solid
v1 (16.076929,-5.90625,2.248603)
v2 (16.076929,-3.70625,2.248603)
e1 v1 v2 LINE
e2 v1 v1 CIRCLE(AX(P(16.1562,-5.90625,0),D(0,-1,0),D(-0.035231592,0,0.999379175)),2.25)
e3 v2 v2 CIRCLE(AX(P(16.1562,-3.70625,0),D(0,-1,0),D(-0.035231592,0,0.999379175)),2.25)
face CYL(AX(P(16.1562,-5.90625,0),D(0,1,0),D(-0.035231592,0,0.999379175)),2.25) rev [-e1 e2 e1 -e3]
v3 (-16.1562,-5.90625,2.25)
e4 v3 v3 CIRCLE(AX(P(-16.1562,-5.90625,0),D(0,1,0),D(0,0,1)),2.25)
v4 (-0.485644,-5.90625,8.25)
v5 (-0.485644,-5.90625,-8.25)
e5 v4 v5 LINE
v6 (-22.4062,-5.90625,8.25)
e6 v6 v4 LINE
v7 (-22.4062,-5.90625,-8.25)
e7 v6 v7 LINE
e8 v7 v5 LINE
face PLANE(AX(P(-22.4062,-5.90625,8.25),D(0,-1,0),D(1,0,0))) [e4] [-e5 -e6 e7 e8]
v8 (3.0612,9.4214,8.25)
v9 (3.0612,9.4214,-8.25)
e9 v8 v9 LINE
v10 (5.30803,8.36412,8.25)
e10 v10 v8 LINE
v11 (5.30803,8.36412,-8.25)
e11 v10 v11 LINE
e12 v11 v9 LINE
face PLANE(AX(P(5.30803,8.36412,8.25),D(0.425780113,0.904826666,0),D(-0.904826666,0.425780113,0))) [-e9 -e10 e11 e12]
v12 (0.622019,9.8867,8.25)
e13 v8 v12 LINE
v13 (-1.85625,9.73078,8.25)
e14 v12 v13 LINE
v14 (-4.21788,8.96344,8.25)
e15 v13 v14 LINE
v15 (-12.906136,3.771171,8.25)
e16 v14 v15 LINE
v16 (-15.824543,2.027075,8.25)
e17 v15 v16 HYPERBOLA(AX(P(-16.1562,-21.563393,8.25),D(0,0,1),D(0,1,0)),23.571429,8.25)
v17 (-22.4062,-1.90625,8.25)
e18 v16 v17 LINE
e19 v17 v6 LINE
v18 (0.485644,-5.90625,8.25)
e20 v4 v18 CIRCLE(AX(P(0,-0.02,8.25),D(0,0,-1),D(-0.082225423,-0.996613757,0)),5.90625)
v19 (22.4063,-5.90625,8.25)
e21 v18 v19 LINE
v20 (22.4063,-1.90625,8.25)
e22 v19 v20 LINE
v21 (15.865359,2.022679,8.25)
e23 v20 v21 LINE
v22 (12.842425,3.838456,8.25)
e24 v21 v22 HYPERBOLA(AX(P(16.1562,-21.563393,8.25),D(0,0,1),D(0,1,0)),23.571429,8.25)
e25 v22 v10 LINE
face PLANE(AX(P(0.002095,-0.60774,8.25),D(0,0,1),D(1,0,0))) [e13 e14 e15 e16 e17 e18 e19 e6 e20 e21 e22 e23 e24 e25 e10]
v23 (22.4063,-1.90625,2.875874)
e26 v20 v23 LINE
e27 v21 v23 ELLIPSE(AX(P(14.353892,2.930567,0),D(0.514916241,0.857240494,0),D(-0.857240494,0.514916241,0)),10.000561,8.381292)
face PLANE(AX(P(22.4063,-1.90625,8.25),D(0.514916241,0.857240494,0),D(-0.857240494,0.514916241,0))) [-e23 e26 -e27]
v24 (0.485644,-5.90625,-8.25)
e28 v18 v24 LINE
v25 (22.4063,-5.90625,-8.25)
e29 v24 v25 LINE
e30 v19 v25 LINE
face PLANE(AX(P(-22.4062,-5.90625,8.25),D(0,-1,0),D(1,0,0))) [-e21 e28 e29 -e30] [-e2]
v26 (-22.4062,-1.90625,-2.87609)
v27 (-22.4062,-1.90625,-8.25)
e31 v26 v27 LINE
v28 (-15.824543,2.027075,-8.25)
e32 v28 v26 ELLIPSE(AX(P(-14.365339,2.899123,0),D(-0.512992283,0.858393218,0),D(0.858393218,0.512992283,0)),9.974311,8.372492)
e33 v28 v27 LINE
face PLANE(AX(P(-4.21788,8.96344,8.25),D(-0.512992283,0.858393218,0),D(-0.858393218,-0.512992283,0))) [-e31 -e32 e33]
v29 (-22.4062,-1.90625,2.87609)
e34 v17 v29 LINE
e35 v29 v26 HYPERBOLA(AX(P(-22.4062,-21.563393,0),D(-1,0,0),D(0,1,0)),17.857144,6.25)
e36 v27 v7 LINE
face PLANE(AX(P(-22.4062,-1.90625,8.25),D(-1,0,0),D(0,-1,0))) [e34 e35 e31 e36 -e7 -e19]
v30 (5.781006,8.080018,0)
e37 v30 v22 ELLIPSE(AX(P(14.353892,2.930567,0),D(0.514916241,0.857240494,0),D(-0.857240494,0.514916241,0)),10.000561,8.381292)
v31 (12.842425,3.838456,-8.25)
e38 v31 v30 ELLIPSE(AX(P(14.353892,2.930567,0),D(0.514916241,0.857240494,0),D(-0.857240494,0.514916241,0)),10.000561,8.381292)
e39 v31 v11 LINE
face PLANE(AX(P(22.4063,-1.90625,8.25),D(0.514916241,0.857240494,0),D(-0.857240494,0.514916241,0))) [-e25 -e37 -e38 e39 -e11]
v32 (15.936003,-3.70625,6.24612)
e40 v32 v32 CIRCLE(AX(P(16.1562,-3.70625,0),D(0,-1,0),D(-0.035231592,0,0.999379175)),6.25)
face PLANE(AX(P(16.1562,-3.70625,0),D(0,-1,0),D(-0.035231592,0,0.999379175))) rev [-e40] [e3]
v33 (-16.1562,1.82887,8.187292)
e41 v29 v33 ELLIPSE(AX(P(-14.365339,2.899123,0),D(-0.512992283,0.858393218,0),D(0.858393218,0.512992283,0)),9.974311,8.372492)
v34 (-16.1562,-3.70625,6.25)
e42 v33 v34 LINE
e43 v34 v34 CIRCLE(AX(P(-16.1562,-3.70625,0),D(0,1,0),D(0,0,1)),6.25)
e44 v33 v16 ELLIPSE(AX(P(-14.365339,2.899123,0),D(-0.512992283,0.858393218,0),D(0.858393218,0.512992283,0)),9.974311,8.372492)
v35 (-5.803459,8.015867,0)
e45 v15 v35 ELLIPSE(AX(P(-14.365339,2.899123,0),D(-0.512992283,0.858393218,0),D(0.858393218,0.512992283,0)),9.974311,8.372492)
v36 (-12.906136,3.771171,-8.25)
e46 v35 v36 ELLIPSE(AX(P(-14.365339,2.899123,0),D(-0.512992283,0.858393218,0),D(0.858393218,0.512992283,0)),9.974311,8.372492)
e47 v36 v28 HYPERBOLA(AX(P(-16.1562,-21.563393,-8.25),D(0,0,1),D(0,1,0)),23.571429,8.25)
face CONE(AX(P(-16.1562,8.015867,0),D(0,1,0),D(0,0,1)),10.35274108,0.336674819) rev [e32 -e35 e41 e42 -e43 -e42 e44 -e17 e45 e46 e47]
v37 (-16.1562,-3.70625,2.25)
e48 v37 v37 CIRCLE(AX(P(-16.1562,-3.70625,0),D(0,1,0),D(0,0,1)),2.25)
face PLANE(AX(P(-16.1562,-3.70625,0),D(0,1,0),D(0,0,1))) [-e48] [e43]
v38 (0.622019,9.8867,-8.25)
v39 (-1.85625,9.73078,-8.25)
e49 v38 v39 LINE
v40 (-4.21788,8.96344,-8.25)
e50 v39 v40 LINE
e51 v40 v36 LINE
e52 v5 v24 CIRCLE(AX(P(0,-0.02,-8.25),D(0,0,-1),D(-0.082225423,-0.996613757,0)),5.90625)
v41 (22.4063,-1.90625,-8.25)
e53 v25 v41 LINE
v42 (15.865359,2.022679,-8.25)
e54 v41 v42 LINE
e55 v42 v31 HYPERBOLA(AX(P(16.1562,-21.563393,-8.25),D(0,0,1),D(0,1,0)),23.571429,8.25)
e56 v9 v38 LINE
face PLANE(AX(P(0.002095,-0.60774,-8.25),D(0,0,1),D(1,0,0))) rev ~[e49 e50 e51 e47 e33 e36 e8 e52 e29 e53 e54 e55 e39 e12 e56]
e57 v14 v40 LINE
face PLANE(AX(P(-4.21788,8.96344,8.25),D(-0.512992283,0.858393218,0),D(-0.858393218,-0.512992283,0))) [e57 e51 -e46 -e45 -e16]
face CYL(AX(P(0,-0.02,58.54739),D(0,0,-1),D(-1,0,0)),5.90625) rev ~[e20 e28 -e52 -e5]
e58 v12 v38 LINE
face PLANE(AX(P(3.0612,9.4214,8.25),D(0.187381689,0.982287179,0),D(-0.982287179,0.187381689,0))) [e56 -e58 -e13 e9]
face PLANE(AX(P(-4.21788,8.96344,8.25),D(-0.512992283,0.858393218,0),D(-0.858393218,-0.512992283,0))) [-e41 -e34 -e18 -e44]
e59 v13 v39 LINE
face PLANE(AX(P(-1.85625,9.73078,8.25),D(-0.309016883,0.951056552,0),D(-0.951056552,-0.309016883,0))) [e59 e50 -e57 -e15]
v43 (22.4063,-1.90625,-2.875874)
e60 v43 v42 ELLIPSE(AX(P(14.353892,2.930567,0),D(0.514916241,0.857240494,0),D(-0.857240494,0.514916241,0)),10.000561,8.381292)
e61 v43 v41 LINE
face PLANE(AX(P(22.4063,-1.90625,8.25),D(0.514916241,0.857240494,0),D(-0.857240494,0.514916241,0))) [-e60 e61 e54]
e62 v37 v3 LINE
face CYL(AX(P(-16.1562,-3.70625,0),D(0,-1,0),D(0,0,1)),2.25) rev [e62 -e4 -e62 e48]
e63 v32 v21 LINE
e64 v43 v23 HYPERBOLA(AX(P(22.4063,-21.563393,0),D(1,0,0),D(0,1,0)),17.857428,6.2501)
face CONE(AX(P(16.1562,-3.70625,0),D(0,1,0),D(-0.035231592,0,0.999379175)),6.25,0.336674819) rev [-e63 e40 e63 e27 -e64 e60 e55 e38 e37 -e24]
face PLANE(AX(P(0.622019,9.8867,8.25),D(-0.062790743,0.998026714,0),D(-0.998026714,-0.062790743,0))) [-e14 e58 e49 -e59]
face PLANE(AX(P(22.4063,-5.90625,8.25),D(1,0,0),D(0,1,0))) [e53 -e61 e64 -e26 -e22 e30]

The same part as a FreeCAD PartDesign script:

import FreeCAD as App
import Part
import Sketcher

V = App.Vector
Q = App.Units.Quantity

doc = App.newDocument("Part")
body = doc.addObject("PartDesign::Body", "Body")

sketch1 = body.newObject("Sketcher::SketchObject", "Sketch")
sketch1.AttachmentSupport = (doc.getObject("XY_Plane"), [""])
sketch1.MapMode = "FlatFace"
sketch1.AttachmentOffset = App.Placement(V(0, 0, 8.25), App.Rotation())
sketch1.addGeometry([
    Part.LineSegment(V(22.4063, -1.90625, 0), V(5.30803, 8.36412, 0)),
    Part.LineSegment(V(5.30803, 8.36412, 0), V(3.0612, 9.4214, 0)),
    Part.LineSegment(V(3.0612, 9.4214, 0), V(0.622019, 9.8867, 0)),
    Part.LineSegment(V(0.622019, 9.8867, 0), V(-1.85625, 9.73078, 0)),
    Part.LineSegment(V(-1.85625, 9.73078, 0), V(-4.21788, 8.96344, 0)),
    Part.LineSegment(V(-4.21788, 8.96344, 0), V(-22.4062, -1.90625, 0)),
    Part.LineSegment(V(-22.4062, -1.90625, 0), V(-22.4062, -5.90625, 0)),
    Part.LineSegment(V(-22.4062, -5.90625, 0), V(22.4063, -5.90625, 0)),
    Part.LineSegment(V(22.4063, -5.90625, 0), V(22.4063, -1.90625, 0)),
], False)
sketch1.addConstraint([
    Sketcher.Constraint("Coincident", 0, 2, 1, 1),
    Sketcher.Constraint("Coincident", 1, 2, 2, 1),
    Sketcher.Constraint("Coincident", 2, 2, 3, 1),
    Sketcher.Constraint("Coincident", 3, 2, 4, 1),
    Sketcher.Constraint("Coincident", 4, 2, 5, 1),
    Sketcher.Constraint("Coincident", 5, 2, 6, 1),
    Sketcher.Constraint("Coincident", 6, 2, 7, 1),
    Sketcher.Constraint("Coincident", 7, 2, 8, 1),
    Sketcher.Constraint("Coincident", 8, 2, 0, 1),
    Sketcher.Constraint("Vertical", 6),
    Sketcher.Constraint("Horizontal", 7),
    Sketcher.Constraint("Vertical", 8),
    Sketcher.Constraint("Horizontal", 5, 2, 8, 2),
    Sketcher.Constraint("Equal", 2, 4),
    Sketcher.Constraint("DistanceY", 6, 2, 6, 1, 4.0),
    Sketcher.Constraint("Angle", 4, Q("-162.000007 deg")),
    Sketcher.Constraint("Angle", 3, Q("-176.399987 deg")),
    Sketcher.Constraint("DistanceX", 7, 1, 7, 2, 44.8125),
    Sketcher.Constraint("Distance", 5, 21.188798),
    Sketcher.Constraint("DistanceX", -1, 1, 1, 2, 3.0612),
    Sketcher.Constraint("DistanceY", -1, 1, 1, 2, 9.4214),
    Sketcher.Constraint("DistanceY", -1, 1, 2, 2, 9.8867),
    Sketcher.Constraint("DistanceX", 5, 2, -1, 1, 22.4062),
    Sketcher.Constraint("DistanceX", 4, 2, 2, 2, 4.839899),
    Sketcher.Constraint("Distance", 0, 19.945709),
    Sketcher.Constraint("Distance", 1, 2.483161),
    Sketcher.Constraint("Distance", 3, 2.483169),
])
pad1 = body.newObject("PartDesign::Pad", "Pad")
pad1.Profile = sketch1
pad1.Length = 16.5
pad1.Reversed = True

sketch2 = body.newObject("Sketcher::SketchObject", "Sketch001")
sketch2.AttachmentSupport = (doc.getObject("XY_Plane"), [""])
sketch2.MapMode = "FlatFace"
sketch2.addGeometry([
    Part.LineSegment(V(26.531394, 8.080018, 0), V(16.1562, 8.080018, 0)),
    Part.LineSegment(V(16.1562, 8.080018, 0), V(16.1562, -5.90625, 0)),
    Part.LineSegment(V(16.1562, -5.90625, 0), V(18.4062, -5.90625, 0)),
    Part.LineSegment(V(18.4062, -5.90625, 0), V(18.4062, -3.70625, 0)),
    Part.LineSegment(V(18.4062, -3.70625, 0), V(22.4062, -3.70625, 0)),
    Part.LineSegment(V(22.4062, -3.70625, 0), V(26.531394, 8.080018, 0)),
], False)
sketch2.addGeometry(Part.LineSegment(V(16.1562, 8.080018, 0), V(16.1562, -5.90625, 0)), True)
sketch2.addConstraint([
    Sketcher.Constraint("Coincident", 0, 2, 1, 1),
    Sketcher.Constraint("Coincident", 1, 2, 2, 1),
    Sketcher.Constraint("Coincident", 2, 2, 3, 1),
    Sketcher.Constraint("Coincident", 3, 2, 4, 1),
    Sketcher.Constraint("Coincident", 4, 2, 5, 1),
    Sketcher.Constraint("Coincident", 5, 2, 0, 1),
    Sketcher.Constraint("Horizontal", 0),
    Sketcher.Constraint("Vertical", 1),
    Sketcher.Constraint("Horizontal", 2),
    Sketcher.Constraint("Vertical", 3),
    Sketcher.Constraint("Horizontal", 4),
    Sketcher.Constraint("Vertical", 6),
    Sketcher.Constraint("Coincident", 6, 1, 0, 2),
    Sketcher.Constraint("Horizontal", 2, 2, 6, 2),
    Sketcher.Constraint("DistanceX", 4, 1, 4, 2, 4.0),
    Sketcher.Constraint("DistanceY", 3, 1, 3, 2, 2.2),
    Sketcher.Constraint("DistanceX", 2, 1, 2, 2, 2.25),
    Sketcher.Constraint("DistanceY", 1, 2, 1, 1, 13.986268),
    Sketcher.Constraint("DistanceX", -1, 1, 0, 2, 16.1562),
    Sketcher.Constraint("DistanceX", 0, 2, 0, 1, 10.375194),
    Sketcher.Constraint("DistanceY", -1, 1, 0, 2, 8.080018),
])
groove = body.newObject("PartDesign::Groove", "Groove")
groove.Profile = sketch2
groove.ReferenceAxis = (sketch2, ["Axis0"])
groove.Angle = 360

sketch3 = body.newObject("Sketcher::SketchObject", "Sketch002")
sketch3.AttachmentSupport = (doc.getObject("XY_Plane"), [""])
sketch3.MapMode = "FlatFace"
sketch3.addGeometry([
    Part.LineSegment(V(-13.9062, -5.90625, 0), V(-16.1562, -5.90625, 0)),
    Part.LineSegment(V(-16.1562, -5.90625, 0), V(-16.1562, 8.015867, 0)),
    Part.LineSegment(V(-16.1562, 8.015867, 0), V(-5.803459, 8.015867, 0)),
    Part.LineSegment(V(-5.803459, 8.015867, 0), V(-9.9062, -3.70625, 0)),
    Part.LineSegment(V(-9.9062, -3.70625, 0), V(-13.9062, -3.70625, 0)),
    Part.LineSegment(V(-13.9062, -3.70625, 0), V(-13.9062, -5.90625, 0)),
], False)
sketch3.addGeometry(Part.LineSegment(V(-16.1562, -5.90625, 0), V(-16.1562, 8.015867, 0)), True)
sketch3.addConstraint([
    Sketcher.Constraint("Coincident", 0, 2, 1, 1),
    Sketcher.Constraint("Coincident", 1, 2, 2, 1),
    Sketcher.Constraint("Coincident", 2, 2, 3, 1),
    Sketcher.Constraint("Coincident", 3, 2, 4, 1),
    Sketcher.Constraint("Coincident", 4, 2, 5, 1),
    Sketcher.Constraint("Coincident", 5, 2, 0, 1),
    Sketcher.Constraint("Horizontal", 0),
    Sketcher.Constraint("Vertical", 1),
    Sketcher.Constraint("Horizontal", 2),
    Sketcher.Constraint("Horizontal", 4),
    Sketcher.Constraint("Vertical", 5),
    Sketcher.Constraint("Vertical", 6),
    Sketcher.Constraint("Coincident", 6, 1, 0, 2),
    Sketcher.Constraint("Horizontal", 2, 2, 6, 2),
    Sketcher.Constraint("DistanceX", 4, 2, 4, 1, 4.0),
    Sketcher.Constraint("DistanceY", 5, 2, 5, 1, 2.2),
    Sketcher.Constraint("DistanceX", 0, 2, 0, 1, 2.25),
    Sketcher.Constraint("DistanceX", 2, 1, 2, 2, 10.352741),
    Sketcher.Constraint("DistanceX", 0, 2, -1, 1, 16.1562),
    Sketcher.Constraint("Distance", 3, 12.419361),
    Sketcher.Constraint("DistanceY", 0, 2, -1, 1, 5.90625),
])
groove2 = body.newObject("PartDesign::Groove", "Groove001")
groove2.Profile = sketch3
groove2.ReferenceAxis = (sketch3, ["Axis0"])
groove2.Angle = 360

sketch4 = body.newObject("Sketcher::SketchObject", "Sketch003")
sketch4.AttachmentSupport = (doc.getObject("XY_Plane"), [""])
sketch4.MapMode = "FlatFace"
sketch4.AttachmentOffset = App.Placement(V(0, 0, 8.25), App.Rotation())
sketch4.addGeometry(Part.Circle(V(0, -0.02, 0), V(0, 0, 1), 5.90625), False)
sketch4.addConstraint([
    Sketcher.Constraint("PointOnObject", 0, 3, -2),
    Sketcher.Constraint("Diameter", 0, 11.8125),
    Sketcher.Constraint("DistanceY", 0, 3, -1, 1, 0.02),
])
doc.recompute()
hole = body.newObject("PartDesign::Hole", "Hole")
hole.Profile = sketch4
hole.ThreadType = "None"
hole.Diameter = 11.8125
hole.DepthType = "ThroughAll"

doc.recompute()
